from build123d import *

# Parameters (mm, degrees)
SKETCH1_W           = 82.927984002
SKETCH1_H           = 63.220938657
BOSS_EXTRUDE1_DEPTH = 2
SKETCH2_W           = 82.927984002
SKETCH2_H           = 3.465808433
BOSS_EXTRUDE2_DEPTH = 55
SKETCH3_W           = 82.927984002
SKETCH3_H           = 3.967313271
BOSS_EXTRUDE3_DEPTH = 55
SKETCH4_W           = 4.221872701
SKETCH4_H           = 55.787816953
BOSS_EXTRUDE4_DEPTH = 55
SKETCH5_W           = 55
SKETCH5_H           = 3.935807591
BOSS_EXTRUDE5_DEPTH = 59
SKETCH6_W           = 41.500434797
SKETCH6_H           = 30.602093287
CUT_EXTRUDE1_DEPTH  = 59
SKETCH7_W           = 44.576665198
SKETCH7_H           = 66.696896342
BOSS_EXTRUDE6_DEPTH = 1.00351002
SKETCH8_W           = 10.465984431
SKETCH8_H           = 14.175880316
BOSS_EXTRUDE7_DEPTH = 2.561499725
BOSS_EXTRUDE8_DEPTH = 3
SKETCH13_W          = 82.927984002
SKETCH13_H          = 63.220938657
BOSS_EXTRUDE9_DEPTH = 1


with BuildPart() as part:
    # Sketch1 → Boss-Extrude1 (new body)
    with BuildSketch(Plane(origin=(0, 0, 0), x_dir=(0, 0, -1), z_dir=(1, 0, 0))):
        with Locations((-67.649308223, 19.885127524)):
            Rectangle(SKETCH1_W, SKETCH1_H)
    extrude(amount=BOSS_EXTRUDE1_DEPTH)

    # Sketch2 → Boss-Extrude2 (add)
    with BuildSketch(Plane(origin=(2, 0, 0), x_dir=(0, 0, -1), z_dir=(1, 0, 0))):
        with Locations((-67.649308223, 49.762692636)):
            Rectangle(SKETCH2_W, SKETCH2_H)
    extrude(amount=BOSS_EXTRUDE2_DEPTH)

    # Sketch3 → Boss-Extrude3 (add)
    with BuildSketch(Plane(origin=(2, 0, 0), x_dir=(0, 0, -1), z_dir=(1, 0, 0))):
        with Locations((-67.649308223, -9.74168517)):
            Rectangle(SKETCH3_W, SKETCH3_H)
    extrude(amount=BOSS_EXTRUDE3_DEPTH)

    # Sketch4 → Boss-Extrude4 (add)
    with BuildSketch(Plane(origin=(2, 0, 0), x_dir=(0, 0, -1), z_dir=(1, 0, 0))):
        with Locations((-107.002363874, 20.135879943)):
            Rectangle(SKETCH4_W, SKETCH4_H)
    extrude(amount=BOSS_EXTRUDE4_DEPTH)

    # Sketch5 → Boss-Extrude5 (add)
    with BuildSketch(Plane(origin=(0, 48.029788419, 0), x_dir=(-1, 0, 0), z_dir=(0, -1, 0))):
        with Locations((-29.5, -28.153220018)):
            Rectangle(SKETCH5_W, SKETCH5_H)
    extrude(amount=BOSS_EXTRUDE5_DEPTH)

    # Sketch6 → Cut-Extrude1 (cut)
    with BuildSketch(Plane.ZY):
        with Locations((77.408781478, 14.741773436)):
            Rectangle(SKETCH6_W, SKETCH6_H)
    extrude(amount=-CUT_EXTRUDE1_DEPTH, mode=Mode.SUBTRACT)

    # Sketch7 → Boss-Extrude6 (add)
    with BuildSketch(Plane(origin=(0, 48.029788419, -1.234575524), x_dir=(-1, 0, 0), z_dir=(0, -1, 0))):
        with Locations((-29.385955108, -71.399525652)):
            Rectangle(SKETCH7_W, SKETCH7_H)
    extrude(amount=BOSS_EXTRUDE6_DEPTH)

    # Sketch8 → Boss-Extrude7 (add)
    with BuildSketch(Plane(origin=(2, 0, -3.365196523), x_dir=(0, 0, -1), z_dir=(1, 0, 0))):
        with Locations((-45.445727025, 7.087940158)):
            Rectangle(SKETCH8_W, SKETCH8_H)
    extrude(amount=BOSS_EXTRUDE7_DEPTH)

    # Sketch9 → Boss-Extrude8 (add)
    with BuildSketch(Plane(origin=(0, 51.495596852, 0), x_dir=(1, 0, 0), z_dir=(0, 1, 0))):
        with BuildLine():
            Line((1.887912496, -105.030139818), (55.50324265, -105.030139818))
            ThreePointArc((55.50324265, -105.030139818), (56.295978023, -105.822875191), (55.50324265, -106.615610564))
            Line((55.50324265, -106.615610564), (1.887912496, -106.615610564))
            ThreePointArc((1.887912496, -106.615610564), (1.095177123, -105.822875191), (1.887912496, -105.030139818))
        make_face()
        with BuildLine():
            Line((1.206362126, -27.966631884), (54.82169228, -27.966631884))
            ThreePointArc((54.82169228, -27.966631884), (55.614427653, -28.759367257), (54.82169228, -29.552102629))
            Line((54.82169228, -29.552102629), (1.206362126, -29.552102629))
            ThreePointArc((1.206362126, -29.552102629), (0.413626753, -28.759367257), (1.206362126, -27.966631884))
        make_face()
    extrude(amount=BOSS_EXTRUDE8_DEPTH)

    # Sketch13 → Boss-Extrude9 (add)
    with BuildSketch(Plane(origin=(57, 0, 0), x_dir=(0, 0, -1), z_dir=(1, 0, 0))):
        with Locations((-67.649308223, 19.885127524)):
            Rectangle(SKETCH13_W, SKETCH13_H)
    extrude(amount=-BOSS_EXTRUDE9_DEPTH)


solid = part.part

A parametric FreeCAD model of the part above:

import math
import FreeCAD as App
import Part
import Sketcher

V = App.Vector
Q = App.Units.Quantity

doc = App.newDocument("Part")
body = doc.addObject("PartDesign::Body", "Body")

sketch1 = body.newObject("Sketcher::SketchObject", "Sketch")
sketch1.AttachmentSupport = (doc.getObject("YZ_Plane"), [""])
sketch1.MapMode = "FlatFace"
sketch1.addGeometry([
    Part.LineSegment(V(51, 109, 0), V(-12, 109, 0)),
    Part.LineSegment(V(-12, 109, 0), V(-12, 26, 0)),
    Part.LineSegment(V(-12, 26, 0), V(51, 26, 0)),
    Part.LineSegment(V(51, 26, 0), V(51, 109, 0)),
], False)
sketch1.addConstraint([
    Sketcher.Constraint("Coincident", 0, 2, 1, 1),
    Sketcher.Constraint("Coincident", 1, 2, 2, 1),
    Sketcher.Constraint("Coincident", 2, 2, 3, 1),
    Sketcher.Constraint("Coincident", 3, 2, 0, 1),
    Sketcher.Constraint("Horizontal", 0),
    Sketcher.Constraint("Vertical", 1),
    Sketcher.Constraint("Horizontal", 2),
    Sketcher.Constraint("Vertical", 3),
    Sketcher.Constraint("DistanceX", 0, 2, 0, 1, Q("63.220939 mm")),
    Sketcher.Constraint("DistanceY", -1, 1, 0, 2, Q("109.1133 mm")),
    Sketcher.Constraint("DistanceY", 1, 2, 1, 1, Q("82.927984 mm")),
    Sketcher.Constraint("DistanceX", 0, 2, -1, 1, Q("11.725342 mm")),
])
pad1 = body.newObject("PartDesign::Pad", "Pad")
pad1.Profile = sketch1
pad1.Length = 2

sketch2 = body.newObject("Sketcher::SketchObject", "Sketch001")
sketch2.AttachmentSupport = (doc.getObject("YZ_Plane"), [""])
sketch2.MapMode = "FlatFace"
sketch2.AttachmentOffset = App.Placement(V(0, 0, 2), App.Rotation())
sketch2.addGeometry([
    Part.LineSegment(V(51.5, 109.1, 0), V(48, 109.1, 0)),
    Part.LineSegment(V(48, 109.1, 0), V(48, 26.2, 0)),
    Part.LineSegment(V(48, 26.2, 0), V(51.5, 26.2, 0)),
    Part.LineSegment(V(51.5, 26.2, 0), V(51.5, 109.1, 0)),
], False)
sketch2.addConstraint([
    Sketcher.Constraint("Coincident", 0, 2, 1, 1),
    Sketcher.Constraint("Coincident", 1, 2, 2, 1),
    Sketcher.Constraint("Coincident", 2, 2, 3, 1),
    Sketcher.Constraint("Coincident", 3, 2, 0, 1),
    Sketcher.Constraint("Horizontal", 0),
    Sketcher.Constraint("Vertical", 1),
    Sketcher.Constraint("Horizontal", 2),
    Sketcher.Constraint("Vertical", 3),
    Sketcher.Constraint("DistanceX", 0, 2, 0, 1, Q("3.465808 mm")),
    Sketcher.Constraint("DistanceY", -1, 1, 0, 2, Q("109.1133 mm")),
    Sketcher.Constraint("DistanceY", 1, 2, 1, 1, Q("82.927984 mm")),
    Sketcher.Constraint("DistanceX", -1, 1, 0, 2, Q("48.029788 mm")),
])
pad2 = body.newObject("PartDesign::Pad", "Pad001")
pad2.Profile = sketch2
pad2.Length = 55

sketch3 = body.newObject("Sketcher::SketchObject", "Sketch002")
sketch3.AttachmentSupport = (doc.getObject("YZ_Plane"), [""])
sketch3.MapMode = "FlatFace"
sketch3.AttachmentOffset = App.Placement(V(0, 0, 2), App.Rotation())
sketch3.addGeometry([
    Part.LineSegment(V(-7.8, 109.1, 0), V(-11.7, 109.1, 0)),
    Part.LineSegment(V(-11.7, 109.1, 0), V(-11.7, 26.2, 0)),
    Part.LineSegment(V(-11.7, 26.2, 0), V(-7.8, 26.2, 0)),
    Part.LineSegment(V(-7.8, 26.2, 0), V(-7.8, 109.1, 0)),
], False)
sketch3.addConstraint([
    Sketcher.Constraint("Coincident", 0, 2, 1, 1),
    Sketcher.Constraint("Coincident", 1, 2, 2, 1),
    Sketcher.Constraint("Coincident", 2, 2, 3, 1),
    Sketcher.Constraint("Coincident", 3, 2, 0, 1),
    Sketcher.Constraint("Horizontal", 0),
    Sketcher.Constraint("Vertical", 1),
    Sketcher.Constraint("Horizontal", 2),
    Sketcher.Constraint("Vertical", 3),
    Sketcher.Constraint("DistanceY", -1, 1, 0, 2, Q("109.1133 mm")),
    Sketcher.Constraint("DistanceX", 0, 2, 0, 1, Q("3.967313 mm")),
    Sketcher.Constraint("DistanceY", 1, 2, 1, 1, Q("82.927984 mm")),
    Sketcher.Constraint("DistanceX", 0, 2, -1, 1, Q("11.725342 mm")),
])
pad3 = body.newObject("PartDesign::Pad", "Pad002")
pad3.Profile = sketch3
pad3.Length = 55

sketch4 = body.newObject("Sketcher::SketchObject", "Sketch003")
sketch4.AttachmentSupport = (doc.getObject("YZ_Plane"), [""])
sketch4.MapMode = "FlatFace"
sketch4.AttachmentOffset = App.Placement(V(0, 0, 2), App.Rotation())
sketch4.addGeometry([
    Part.LineSegment(V(48, 109.1, 0), V(-7.8, 109.1, 0)),
    Part.LineSegment(V(-7.8, 109.1, 0), V(-7.8, 104.9, 0)),
    Part.LineSegment(V(-7.8, 104.9, 0), V(48, 104.9, 0)),
    Part.LineSegment(V(48, 104.9, 0), V(48, 109.1, 0)),
], False)
sketch4.addConstraint([
    Sketcher.Constraint("Coincident", 0, 2, 1, 1),
    Sketcher.Constraint("Coincident", 1, 2, 2, 1),
    Sketcher.Constraint("Coincident", 2, 2, 3, 1),
    Sketcher.Constraint("Coincident", 3, 2, 0, 1),
    Sketcher.Constraint("Horizontal", 0),
    Sketcher.Constraint("Vertical", 1),
    Sketcher.Constraint("Horizontal", 2),
    Sketcher.Constraint("Vertical", 3),
    Sketcher.Constraint("DistanceY", -1, 1, 0, 2, Q("109.1133 mm")),
    Sketcher.Constraint("DistanceX", 0, 2, 0, 1, Q("55.787817 mm")),
    Sketcher.Constraint("DistanceY", 1, 2, 1, 1, Q("4.221873 mm")),
    Sketcher.Constraint("DistanceX", 0, 2, -1, 1, Q("7.758029 mm")),
])
pad4 = body.newObject("PartDesign::Pad", "Pad003")
pad4.Profile = sketch4
pad4.Length = 55

sketch5 = body.newObject("Sketcher::SketchObject", "Sketch004")
sketch5.AttachmentSupport = (doc.getObject("XZ_Plane"), [""])
sketch5.MapMode = "FlatFace"
sketch5.AttachmentOffset = App.Placement(V(0, 0, -48.029788), App.Rotation())
sketch5.addGeometry([
    Part.LineSegment(V(57, 26.2, 0), V(57, 30.1, 0)),
    Part.LineSegment(V(57, 30.1, 0), V(2, 30.1, 0)),
    Part.LineSegment(V(2, 30.1, 0), V(2, 26.2, 0)),
    Part.LineSegment(V(2, 26.2, 0), V(57, 26.2, 0)),
], False)
sketch5.addConstraint([
    Sketcher.Constraint("Coincident", 0, 2, 1, 1),
    Sketcher.Constraint("Coincident", 1, 2, 2, 1),
    Sketcher.Constraint("Coincident", 2, 2, 3, 1),
    Sketcher.Constraint("Coincident", 3, 2, 0, 1),
    Sketcher.Constraint("Vertical", 0),
    Sketcher.Constraint("Horizontal", 1),
    Sketcher.Constraint("Vertical", 2),
    Sketcher.Constraint("Horizontal", 3),
    Sketcher.Constraint("DistanceX", 1, 2, 1, 1, Q("55 mm")),
    Sketcher.Constraint("DistanceX", -1, 1, 0, 2, Q("57 mm")),
    Sketcher.Constraint("DistanceY", 0, 1, 0, 2, Q("3.935808 mm")),
    Sketcher.Constraint("DistanceY", -1, 1, 0, 2, Q("30.121124 mm")),
])
pad5 = body.newObject("PartDesign::Pad", "Pad004")
pad5.Profile = sketch5
pad5.Length = 59

sketch6 = body.newObject("Sketcher::SketchObject", "Sketch005")
sketch6.AttachmentSupport = (doc.getObject("YZ_Plane"), [""])
sketch6.MapMode = "FlatFace"
sketch6.addGeometry([
    Part.LineSegment(V(30, 57, 0), V(-1, 57, 0)),
    Part.LineSegment(V(-1, 57, 0), V(-1, 98, 0)),
    Part.LineSegment(V(-1, 98, 0), V(30, 98, 0)),
    Part.LineSegment(V(30, 98, 0), V(30, 57, 0)),
], False)
sketch6.addConstraint([
    Sketcher.Constraint("Coincident", 0, 2, 1, 1),
    Sketcher.Constraint("Coincident", 1, 2, 2, 1),
    Sketcher.Constraint("Coincident", 2, 2, 3, 1),
    Sketcher.Constraint("Coincident", 3, 2, 0, 1),
    Sketcher.Constraint("Horizontal", 0),
    Sketcher.Constraint("Vertical", 1),
    Sketcher.Constraint("Horizontal", 2),
    Sketcher.Constraint("Vertical", 3),
    Sketcher.Constraint("DistanceY", -1, 1, 1, 2, Q("98.158999 mm")),
    Sketcher.Constraint("DistanceX", 0, 2, 0, 1, Q("30.602093 mm")),
    Sketcher.Constraint("DistanceY", 1, 1, 1, 2, Q("41.500435 mm")),
    Sketcher.Constraint("DistanceX", -1, 1, 2, 2, Q("30.04282 mm")),
])
pocket1 = body.newObject("PartDesign::Pocket", "Pocket")
pocket1.Profile = sketch6
pocket1.Length = 59
pocket1.Reversed = True

sketch7 = body.newObject("Sketcher::SketchObject", "Sketch006")
sketch7.AttachmentSupport = (doc.getObject("XZ_Plane"), [""])
sketch7.MapMode = "FlatFace"
sketch7.AttachmentOffset = App.Placement(V(0, 0, -48.029788), App.Rotation())
sketch7.addGeometry([
    Part.LineSegment(V(52, 37, 0), V(52, 104, 0)),
    Part.LineSegment(V(52, 104, 0), V(7, 104, 0)),
    Part.LineSegment(V(7, 104, 0), V(7, 37, 0)),
    Part.LineSegment(V(7, 37, 0), V(52, 37, 0)),
], False)
sketch7.addConstraint([
    Sketcher.Constraint("Coincident", 0, 2, 1, 1),
    Sketcher.Constraint("Coincident", 1, 2, 2, 1),
    Sketcher.Constraint("Coincident", 2, 2, 3, 1),
    Sketcher.Constraint("Coincident", 3, 2, 0, 1),
    Sketcher.Constraint("Vertical", 0),
    Sketcher.Constraint("Horizontal", 1),
    Sketcher.Constraint("Vertical", 2),
    Sketcher.Constraint("Horizontal", 3),
    Sketcher.Constraint("DistanceY", -1, 1, 0, 2, Q("103.513398 mm")),
    Sketcher.Constraint("DistanceY", -1, 1, 2, 2, Q("36.816502 mm")),
    Sketcher.Constraint("DistanceX", 1, 2, 1, 1, Q("44.576665 mm")),
    Sketcher.Constraint("DistanceX", -1, 1, 0, 2, Q("51.674288 mm")),
])
pad6 = body.newObject("PartDesign::Pad", "Pad005")
pad6.Profile = sketch7
pad6.Length = 1.00351

sketch8 = body.newObject("Sketcher::SketchObject", "Sketch007")
sketch8.AttachmentSupport = (doc.getObject("YZ_Plane"), [""])
sketch8.MapMode = "FlatFace"
sketch8.AttachmentOffset = App.Placement(V(0, 0, 2), App.Rotation())
sketch8.addGeometry([
    Part.LineSegment(V(14, 47, 0), V(0, 47, 0)),
    Part.LineSegment(V(0, 47, 0), V(0, 37, 0)),
    Part.LineSegment(V(0, 37, 0), V(14, 37, 0)),
    Part.LineSegment(V(14, 37, 0), V(14, 47, 0)),
], False)
sketch8.addConstraint([
    Sketcher.Constraint("Coincident", 0, 2, 1, 1),
    Sketcher.Constraint("Coincident", 1, 2, 2, 1),
    Sketcher.Constraint("Coincident", 2, 2, 3, 1),
    Sketcher.Constraint("Coincident", 3, 2, 0, 1),
    Sketcher.Constraint("Horizontal", 0),
    Sketcher.Constraint("Vertical", 1),
    Sketcher.Constraint("Horizontal", 2),
    Sketcher.Constraint("Vertical", 3),
    Sketcher.Constraint("PointOnObject", 0, 2, -2),
    Sketcher.Constraint("DistanceX", 0, 2, 0, 1, Q("14.17588 mm")),
    Sketcher.Constraint("DistanceY", 1, 2, 1, 1, Q("10.465984 mm")),
    Sketcher.Constraint("DistanceY", -1, 1, 1, 2, Q("36.847538 mm")),
])
pad7 = body.newObject("PartDesign::Pad", "Pad006")
pad7.Profile = sketch8
pad7.Length = 2.5615

sketch9 = body.newObject("Sketcher::SketchObject", "Sketch008")
sketch9.AttachmentSupport = (doc.getObject("XZ_Plane"), [""])
sketch9.MapMode = "FlatFace"
sketch9.AttachmentOffset = App.Placement(V(0, 0, -51.495597), App.Rotation())
sketch9.addGeometry([
    Part.LineSegment(V(55.5, 105, 0), V(1.9, 105, 0)),
    Part.ArcOfCircle(Part.Circle(V(1.9, 105.8, 0), V(0, 0, 1), 0.8), math.radians(90), math.radians(270)),
    Part.LineSegment(V(1.9, 106.6, 0), V(55.5, 106.6, 0)),
    Part.ArcOfCircle(Part.Circle(V(55.5, 105.8, 0), V(0, 0, 1), 0.8), math.radians(-90), math.radians(90)),
    Part.LineSegment(V(54.8, 28, 0), V(1.2, 28, 0)),
    Part.ArcOfCircle(Part.Circle(V(1.2, 28.8, 0), V(0, 0, 1), 0.8), math.radians(90), math.radians(270)),
    Part.LineSegment(V(1.2, 29.6, 0), V(54.8, 29.6, 0)),
    Part.ArcOfCircle(Part.Circle(V(54.8, 28.8, 0), V(0, 0, 1), 0.8), math.radians(-90), math.radians(90)),
], False)
sketch9.addConstraint([
    Sketcher.Constraint("Tangent", 0, 2, 1, 2),
    Sketcher.Constraint("Tangent", 1, 1, 2, 1),
    Sketcher.Constraint("Tangent", 2, 2, 3, 2),
    Sketcher.Constraint("Tangent", 3, 1, 0, 1),
    Sketcher.Constraint("Tangent", 4, 2, 5, 2),
    Sketcher.Constraint("Tangent", 5, 1, 6, 1),
    Sketcher.Constraint("Tangent", 6, 2, 7, 2),
    Sketcher.Constraint("Tangent", 7, 1, 4, 1),
    Sketcher.Constraint("Horizontal", 0),
    Sketcher.Constraint("Horizontal", 2),
    Sketcher.Constraint("Horizontal", 4),
    Sketcher.Constraint("Horizontal", 6),
    Sketcher.Constraint("Equal", 3, 5),
    Sketcher.Constraint("Equal", 2, 4),
    Sketcher.Constraint("Radius", 1, Q("0.792735 mm")),
    Sketcher.Constraint("DistanceX", 0, 2, 0, 1, Q("53.61533 mm")),
    Sketcher.Constraint("DistanceY", -1, 1, 0, 2, Q("105.03014 mm")),
    Sketcher.Constraint("DistanceY", -1, 1, 4, 2, Q("27.966632 mm")),
    Sketcher.Constraint("DistanceX", 5, 3, 1, 3, Q("0.68155 mm")),
    Sketcher.Constraint("DistanceX", -1, 1, 1, 3, Q("1.887912 mm")),
])
pad8 = body.newObject("PartDesign::Pad", "Pad007")
pad8.Profile = sketch9
pad8.Length = 3
pad8.Reversed = True

sketch10 = body.newObject("Sketcher::SketchObject", "Sketch009")
sketch10.AttachmentSupport = (doc.getObject("YZ_Plane"), [""])
sketch10.MapMode = "FlatFace"
sketch10.AttachmentOffset = App.Placement(V(0, 0, 57), App.Rotation())
sketch10.addGeometry([
    Part.LineSegment(V(51, 109, 0), V(-12, 109, 0)),
    Part.LineSegment(V(-12, 109, 0), V(-12, 26, 0)),
    Part.LineSegment(V(-12, 26, 0), V(51, 26, 0)),
    Part.LineSegment(V(51, 26, 0), V(51, 109, 0)),
], False)
sketch10.addConstraint([
    Sketcher.Constraint("Coincident", 0, 2, 1, 1),
    Sketcher.Constraint("Coincident", 1, 2, 2, 1),
    Sketcher.Constraint("Coincident", 2, 2, 3, 1),
    Sketcher.Constraint("Coincident", 3, 2, 0, 1),
    Sketcher.Constraint("Horizontal", 0),
    Sketcher.Constraint("Vertical", 1),
    Sketcher.Constraint("Horizontal", 2),
    Sketcher.Constraint("Vertical", 3),
    Sketcher.Constraint("DistanceX", 0, 2, 0, 1, Q("63.220939 mm")),
    Sketcher.Constraint("DistanceY", -1, 1, 0, 2, Q("109.1133 mm")),
    Sketcher.Constraint("DistanceY", 1, 2, 1, 1, Q("82.927984 mm")),
    Sketcher.Constraint("DistanceX", 0, 2, -1, 1, Q("11.725342 mm")),
])
pad9 = body.newObject("PartDesign::Pad", "Pad008")
pad9.Profile = sketch10
pad9.Length = 1
pad9.Reversed = True

doc.recompute()
